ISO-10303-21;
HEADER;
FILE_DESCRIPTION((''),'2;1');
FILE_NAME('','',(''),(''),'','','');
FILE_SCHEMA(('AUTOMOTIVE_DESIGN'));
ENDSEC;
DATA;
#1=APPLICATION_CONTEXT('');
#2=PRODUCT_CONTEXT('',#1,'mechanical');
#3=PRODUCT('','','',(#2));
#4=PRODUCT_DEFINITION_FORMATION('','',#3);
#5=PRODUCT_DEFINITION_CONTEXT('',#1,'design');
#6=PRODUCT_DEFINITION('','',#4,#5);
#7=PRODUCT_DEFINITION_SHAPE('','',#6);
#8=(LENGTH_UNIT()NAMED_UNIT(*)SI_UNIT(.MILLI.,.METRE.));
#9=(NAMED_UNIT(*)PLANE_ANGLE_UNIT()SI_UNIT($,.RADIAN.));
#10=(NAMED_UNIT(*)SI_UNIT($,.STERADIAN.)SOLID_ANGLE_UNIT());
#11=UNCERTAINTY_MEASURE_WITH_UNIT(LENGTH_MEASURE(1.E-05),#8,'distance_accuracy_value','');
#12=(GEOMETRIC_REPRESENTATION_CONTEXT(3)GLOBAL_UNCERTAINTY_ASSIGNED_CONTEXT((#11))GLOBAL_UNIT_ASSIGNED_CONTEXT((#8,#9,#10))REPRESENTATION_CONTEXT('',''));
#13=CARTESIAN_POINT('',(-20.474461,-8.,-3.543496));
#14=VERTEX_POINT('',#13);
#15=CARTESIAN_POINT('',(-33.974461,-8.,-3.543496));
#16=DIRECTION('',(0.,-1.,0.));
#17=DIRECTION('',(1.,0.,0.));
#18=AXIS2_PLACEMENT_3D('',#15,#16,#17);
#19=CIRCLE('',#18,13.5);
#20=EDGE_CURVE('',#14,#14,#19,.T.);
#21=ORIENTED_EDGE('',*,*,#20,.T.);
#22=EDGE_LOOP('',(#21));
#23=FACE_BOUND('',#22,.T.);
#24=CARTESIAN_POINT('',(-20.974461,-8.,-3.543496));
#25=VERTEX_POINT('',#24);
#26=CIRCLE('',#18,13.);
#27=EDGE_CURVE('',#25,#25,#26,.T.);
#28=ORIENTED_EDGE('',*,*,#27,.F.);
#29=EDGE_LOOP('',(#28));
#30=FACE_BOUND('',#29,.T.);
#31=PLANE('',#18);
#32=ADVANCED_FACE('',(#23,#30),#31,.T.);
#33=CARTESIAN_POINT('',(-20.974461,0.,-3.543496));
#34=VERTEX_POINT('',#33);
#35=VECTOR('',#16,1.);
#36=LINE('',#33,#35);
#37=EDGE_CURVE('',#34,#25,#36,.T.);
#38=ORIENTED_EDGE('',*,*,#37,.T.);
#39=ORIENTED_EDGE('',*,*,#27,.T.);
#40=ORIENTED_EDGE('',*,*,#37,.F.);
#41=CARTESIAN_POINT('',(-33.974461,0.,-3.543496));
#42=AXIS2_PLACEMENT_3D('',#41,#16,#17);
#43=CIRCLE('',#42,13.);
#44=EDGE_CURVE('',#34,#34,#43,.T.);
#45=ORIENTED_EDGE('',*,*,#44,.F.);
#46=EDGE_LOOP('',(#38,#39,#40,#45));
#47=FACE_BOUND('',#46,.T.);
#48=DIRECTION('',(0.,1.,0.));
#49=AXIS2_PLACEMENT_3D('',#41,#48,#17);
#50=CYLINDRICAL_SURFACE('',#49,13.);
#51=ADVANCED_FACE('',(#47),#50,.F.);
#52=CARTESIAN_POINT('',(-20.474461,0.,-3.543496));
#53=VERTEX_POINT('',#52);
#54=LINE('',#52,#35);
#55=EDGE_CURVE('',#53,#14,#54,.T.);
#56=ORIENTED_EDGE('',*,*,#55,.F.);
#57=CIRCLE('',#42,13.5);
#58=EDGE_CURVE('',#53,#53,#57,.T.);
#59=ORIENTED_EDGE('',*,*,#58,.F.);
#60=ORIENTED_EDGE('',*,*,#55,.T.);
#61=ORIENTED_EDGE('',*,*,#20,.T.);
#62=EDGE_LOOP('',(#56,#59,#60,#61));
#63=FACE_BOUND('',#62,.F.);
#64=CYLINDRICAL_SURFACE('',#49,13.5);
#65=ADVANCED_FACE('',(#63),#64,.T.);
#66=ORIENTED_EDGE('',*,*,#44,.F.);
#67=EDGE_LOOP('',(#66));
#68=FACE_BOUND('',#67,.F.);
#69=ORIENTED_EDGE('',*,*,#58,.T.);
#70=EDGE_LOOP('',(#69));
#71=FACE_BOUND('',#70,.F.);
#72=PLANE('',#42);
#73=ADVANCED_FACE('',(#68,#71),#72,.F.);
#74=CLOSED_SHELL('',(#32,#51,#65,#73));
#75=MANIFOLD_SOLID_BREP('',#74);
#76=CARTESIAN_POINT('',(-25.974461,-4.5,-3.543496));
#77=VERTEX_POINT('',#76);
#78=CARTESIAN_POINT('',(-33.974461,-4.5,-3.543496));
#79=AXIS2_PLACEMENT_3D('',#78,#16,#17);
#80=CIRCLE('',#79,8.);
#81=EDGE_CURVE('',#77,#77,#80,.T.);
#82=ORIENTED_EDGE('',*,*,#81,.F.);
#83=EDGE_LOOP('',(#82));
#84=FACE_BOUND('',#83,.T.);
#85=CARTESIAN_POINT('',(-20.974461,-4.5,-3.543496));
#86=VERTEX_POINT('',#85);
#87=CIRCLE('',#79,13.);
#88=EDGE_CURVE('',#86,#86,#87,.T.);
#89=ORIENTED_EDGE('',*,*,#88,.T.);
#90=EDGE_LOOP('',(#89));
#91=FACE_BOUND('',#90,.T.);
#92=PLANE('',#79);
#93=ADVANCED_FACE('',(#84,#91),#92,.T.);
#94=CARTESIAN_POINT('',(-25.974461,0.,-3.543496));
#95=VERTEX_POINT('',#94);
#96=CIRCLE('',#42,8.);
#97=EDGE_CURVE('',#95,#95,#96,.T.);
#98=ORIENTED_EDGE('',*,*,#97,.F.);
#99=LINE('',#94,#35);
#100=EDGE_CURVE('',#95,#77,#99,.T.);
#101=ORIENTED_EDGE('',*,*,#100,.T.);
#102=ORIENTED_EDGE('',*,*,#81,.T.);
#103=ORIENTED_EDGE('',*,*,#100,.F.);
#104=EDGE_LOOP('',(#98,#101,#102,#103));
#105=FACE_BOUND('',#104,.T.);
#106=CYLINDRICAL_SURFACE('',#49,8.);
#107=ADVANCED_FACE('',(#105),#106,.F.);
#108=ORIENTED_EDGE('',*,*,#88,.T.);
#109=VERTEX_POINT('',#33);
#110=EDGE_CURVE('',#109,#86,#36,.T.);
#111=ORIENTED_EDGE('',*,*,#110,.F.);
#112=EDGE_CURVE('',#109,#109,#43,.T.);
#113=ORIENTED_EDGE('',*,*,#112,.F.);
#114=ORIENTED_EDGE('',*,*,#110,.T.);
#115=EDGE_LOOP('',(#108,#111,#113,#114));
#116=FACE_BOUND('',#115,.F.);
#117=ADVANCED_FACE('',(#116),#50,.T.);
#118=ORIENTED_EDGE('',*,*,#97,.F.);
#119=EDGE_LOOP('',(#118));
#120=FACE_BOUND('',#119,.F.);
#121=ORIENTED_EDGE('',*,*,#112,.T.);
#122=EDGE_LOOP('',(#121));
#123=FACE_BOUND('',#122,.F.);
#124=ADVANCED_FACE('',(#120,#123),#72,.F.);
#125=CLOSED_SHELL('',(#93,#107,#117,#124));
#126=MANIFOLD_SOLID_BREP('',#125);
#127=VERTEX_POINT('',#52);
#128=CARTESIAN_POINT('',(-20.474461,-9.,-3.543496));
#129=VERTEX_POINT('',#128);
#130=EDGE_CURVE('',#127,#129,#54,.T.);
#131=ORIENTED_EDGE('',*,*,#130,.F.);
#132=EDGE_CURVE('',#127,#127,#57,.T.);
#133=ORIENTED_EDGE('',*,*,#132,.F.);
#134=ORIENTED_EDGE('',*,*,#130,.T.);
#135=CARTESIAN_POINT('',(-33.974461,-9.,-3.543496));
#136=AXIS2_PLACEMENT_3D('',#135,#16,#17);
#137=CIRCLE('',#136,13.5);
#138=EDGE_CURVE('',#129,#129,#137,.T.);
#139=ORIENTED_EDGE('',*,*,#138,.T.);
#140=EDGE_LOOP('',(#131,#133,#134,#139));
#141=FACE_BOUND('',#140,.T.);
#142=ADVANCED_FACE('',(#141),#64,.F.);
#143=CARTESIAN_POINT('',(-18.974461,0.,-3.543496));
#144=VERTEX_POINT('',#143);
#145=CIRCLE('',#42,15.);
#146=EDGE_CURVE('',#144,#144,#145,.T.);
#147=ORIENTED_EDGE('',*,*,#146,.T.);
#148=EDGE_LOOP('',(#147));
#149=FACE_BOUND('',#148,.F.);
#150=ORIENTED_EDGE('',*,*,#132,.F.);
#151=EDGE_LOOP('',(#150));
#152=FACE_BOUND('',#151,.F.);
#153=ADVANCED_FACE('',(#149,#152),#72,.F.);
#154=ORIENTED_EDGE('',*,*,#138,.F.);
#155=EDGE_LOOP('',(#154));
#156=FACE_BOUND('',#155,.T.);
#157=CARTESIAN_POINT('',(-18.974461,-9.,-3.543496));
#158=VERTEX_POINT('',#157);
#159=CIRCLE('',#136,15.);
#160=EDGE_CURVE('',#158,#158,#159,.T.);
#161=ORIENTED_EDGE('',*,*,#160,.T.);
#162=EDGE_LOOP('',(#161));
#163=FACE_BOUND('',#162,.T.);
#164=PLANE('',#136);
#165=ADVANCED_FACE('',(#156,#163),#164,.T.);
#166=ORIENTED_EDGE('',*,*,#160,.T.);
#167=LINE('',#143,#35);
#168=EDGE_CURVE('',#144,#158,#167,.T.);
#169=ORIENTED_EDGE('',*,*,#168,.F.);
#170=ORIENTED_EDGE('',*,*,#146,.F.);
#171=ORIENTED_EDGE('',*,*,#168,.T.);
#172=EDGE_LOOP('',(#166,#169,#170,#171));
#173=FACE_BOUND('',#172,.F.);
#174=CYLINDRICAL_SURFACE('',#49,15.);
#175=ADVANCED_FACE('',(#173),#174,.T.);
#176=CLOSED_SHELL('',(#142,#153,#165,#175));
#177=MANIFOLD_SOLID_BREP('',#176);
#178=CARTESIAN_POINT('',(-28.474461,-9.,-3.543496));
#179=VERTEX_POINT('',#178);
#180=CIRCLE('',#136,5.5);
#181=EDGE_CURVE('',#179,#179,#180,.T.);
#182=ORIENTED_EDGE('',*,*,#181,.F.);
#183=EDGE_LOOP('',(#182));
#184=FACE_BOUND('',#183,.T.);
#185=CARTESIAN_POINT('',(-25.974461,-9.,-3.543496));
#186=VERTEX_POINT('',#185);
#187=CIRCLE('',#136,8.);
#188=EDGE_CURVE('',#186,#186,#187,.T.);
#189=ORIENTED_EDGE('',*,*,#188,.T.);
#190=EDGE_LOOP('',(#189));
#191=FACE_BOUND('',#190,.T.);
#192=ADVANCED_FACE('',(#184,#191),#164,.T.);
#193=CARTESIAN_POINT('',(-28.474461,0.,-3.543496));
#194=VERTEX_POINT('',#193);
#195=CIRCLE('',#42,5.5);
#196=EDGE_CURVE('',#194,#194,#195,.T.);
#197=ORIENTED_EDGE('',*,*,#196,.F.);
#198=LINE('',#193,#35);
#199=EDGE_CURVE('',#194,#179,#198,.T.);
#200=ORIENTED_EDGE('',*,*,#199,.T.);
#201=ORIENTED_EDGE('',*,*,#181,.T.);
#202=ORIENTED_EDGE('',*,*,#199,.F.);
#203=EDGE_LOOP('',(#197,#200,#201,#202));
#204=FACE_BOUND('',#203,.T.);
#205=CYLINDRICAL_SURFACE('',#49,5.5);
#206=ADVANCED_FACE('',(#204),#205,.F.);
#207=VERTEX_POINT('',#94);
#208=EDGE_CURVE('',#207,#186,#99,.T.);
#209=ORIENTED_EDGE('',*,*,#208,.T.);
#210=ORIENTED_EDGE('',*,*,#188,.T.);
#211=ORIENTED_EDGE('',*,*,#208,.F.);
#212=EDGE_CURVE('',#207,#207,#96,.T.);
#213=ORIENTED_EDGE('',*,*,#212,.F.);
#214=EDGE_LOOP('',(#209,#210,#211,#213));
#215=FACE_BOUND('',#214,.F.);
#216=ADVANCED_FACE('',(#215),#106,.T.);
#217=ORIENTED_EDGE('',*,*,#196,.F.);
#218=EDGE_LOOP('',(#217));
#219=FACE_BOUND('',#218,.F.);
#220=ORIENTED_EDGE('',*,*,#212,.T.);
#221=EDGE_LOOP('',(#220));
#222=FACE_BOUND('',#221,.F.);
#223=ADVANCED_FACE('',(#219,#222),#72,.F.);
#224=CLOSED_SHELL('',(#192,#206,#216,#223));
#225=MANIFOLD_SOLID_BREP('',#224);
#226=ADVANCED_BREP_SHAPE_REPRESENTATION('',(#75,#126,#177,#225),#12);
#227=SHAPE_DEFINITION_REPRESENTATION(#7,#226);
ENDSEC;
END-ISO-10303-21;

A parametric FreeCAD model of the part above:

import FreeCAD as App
import Part
import Sketcher
Q = App.Units.Quantity

doc = App.newDocument("Part")
body = doc.addObject("PartDesign::Body", "Body")

# Sketch on XZ plane
sketch1 = body.newObject("Sketcher::SketchObject", "Sketch")
sketch1.AttachmentSupport = (doc.getObject("XZ_Plane"), [""])
sketch1.MapMode = "FlatFace"
sketch1.addGeometry(Part.Circle(App.Vector(-34, -4, 0), App.Vector(0, 0, 1), 8), False)
sketch1.addGeometry(Part.Circle(App.Vector(-34, -4, 0), App.Vector(0, 0, 1), 6), False)
sketch1.addConstraint(Sketcher.Constraint("Coincident", 1, 3, 0, 3))
sketch1.addConstraint(Sketcher.Constraint("Diameter", 0, Q("16 mm")))
sketch1.addConstraint(Sketcher.Constraint("Diameter", 1, Q("11 mm")))
sketch1.addConstraint(Sketcher.Constraint("DistanceX", 0, 3, -1, 1, Q("33.974461 mm")))
sketch1.addConstraint(Sketcher.Constraint("DistanceY", 0, 3, -1, 1, Q("3.543496 mm")))
pad1 = body.newObject("PartDesign::Pad", "Pad")
pad1.Profile = sketch1
pad1.Length = 9
body2 = doc.addObject("PartDesign::Body", "Body001")

# Sketch on XZ plane
sketch2 = body2.newObject("Sketcher::SketchObject", "Sketch001")
sketch2.AttachmentSupport = (doc.getObject("XZ_Plane001"), [""])
sketch2.MapMode = "FlatFace"
sketch2.addGeometry(Part.Circle(App.Vector(-34, -4, 0), App.Vector(0, 0, 1), 15), False)
sketch2.addGeometry(Part.Circle(App.Vector(-34, -4, 0), App.Vector(0, 0, 1), 14), False)
sketch2.addConstraint(Sketcher.Constraint("Coincident", 1, 3, 0, 3))
sketch2.addConstraint(Sketcher.Constraint("Diameter", 0, Q("30 mm")))
sketch2.addConstraint(Sketcher.Constraint("Diameter", 1, Q("27 mm")))
sketch2.addConstraint(Sketcher.Constraint("DistanceX", 0, 3, -1, 1, Q("33.974461 mm")))
sketch2.addConstraint(Sketcher.Constraint("DistanceY", 0, 3, -1, 1, Q("3.543496 mm")))
pad2 = body2.newObject("PartDesign::Pad", "Pad001")
pad2.Profile = sketch2
pad2.Length = 9
body3 = doc.addObject("PartDesign::Body", "Body002")

# Sketch on XZ plane
sketch3 = body3.newObject("Sketcher::SketchObject", "Sketch002")
sketch3.AttachmentSupport = (doc.getObject("XZ_Plane002"), [""])
sketch3.MapMode = "FlatFace"
sketch3.addGeometry(Part.Circle(App.Vector(-34, -4, 0), App.Vector(0, 0, 1), 14), False)
sketch3.addGeometry(Part.Circle(App.Vector(-34, -4, 0), App.Vector(0, 0, 1), 13), False)
sketch3.addConstraint(Sketcher.Constraint("Coincident", 1, 3, 0, 3))
sketch3.addConstraint(Sketcher.Constraint("Diameter", 0, Q("27 mm")))
sketch3.addConstraint(Sketcher.Constraint("Diameter", 1, Q("26 mm")))
sketch3.addConstraint(Sketcher.Constraint("DistanceX", 0, 3, -1, 1, Q("33.974461 mm")))
sketch3.addConstraint(Sketcher.Constraint("DistanceY", 0, 3, -1, 1, Q("3.543496 mm")))
pad3 = body3.newObject("PartDesign::Pad", "Pad002")
pad3.Profile = sketch3
pad3.Length = 8
body4 = doc.addObject("PartDesign::Body", "Body003")

# Sketch on XZ plane
sketch4 = body4.newObject("Sketcher::SketchObject", "Sketch003")
sketch4.AttachmentSupport = (doc.getObject("XZ_Plane003"), [""])
sketch4.MapMode = "FlatFace"
sketch4.addGeometry(Part.Circle(App.Vector(-34, -4, 0), App.Vector(0, 0, 1), 13), False)
sketch4.addGeometry(Part.Circle(App.Vector(-34, -4, 0), App.Vector(0, 0, 1), 8), False)
sketch4.addConstraint(Sketcher.Constraint("Coincident", 1, 3, 0, 3))
sketch4.addConstraint(Sketcher.Constraint("Diameter", 0, Q("26 mm")))
sketch4.addConstraint(Sketcher.Constraint("Diameter", 1, Q("16 mm")))
sketch4.addConstraint(Sketcher.Constraint("DistanceX", 0, 3, -1, 1, Q("33.974461 mm")))
sketch4.addConstraint(Sketcher.Constraint("DistanceY", 0, 3, -1, 1, Q("3.543496 mm")))
pad4 = body4.newObject("PartDesign::Pad", "Pad003")
pad4.Profile = sketch4
pad4.Length = 4.5

doc.recompute()
